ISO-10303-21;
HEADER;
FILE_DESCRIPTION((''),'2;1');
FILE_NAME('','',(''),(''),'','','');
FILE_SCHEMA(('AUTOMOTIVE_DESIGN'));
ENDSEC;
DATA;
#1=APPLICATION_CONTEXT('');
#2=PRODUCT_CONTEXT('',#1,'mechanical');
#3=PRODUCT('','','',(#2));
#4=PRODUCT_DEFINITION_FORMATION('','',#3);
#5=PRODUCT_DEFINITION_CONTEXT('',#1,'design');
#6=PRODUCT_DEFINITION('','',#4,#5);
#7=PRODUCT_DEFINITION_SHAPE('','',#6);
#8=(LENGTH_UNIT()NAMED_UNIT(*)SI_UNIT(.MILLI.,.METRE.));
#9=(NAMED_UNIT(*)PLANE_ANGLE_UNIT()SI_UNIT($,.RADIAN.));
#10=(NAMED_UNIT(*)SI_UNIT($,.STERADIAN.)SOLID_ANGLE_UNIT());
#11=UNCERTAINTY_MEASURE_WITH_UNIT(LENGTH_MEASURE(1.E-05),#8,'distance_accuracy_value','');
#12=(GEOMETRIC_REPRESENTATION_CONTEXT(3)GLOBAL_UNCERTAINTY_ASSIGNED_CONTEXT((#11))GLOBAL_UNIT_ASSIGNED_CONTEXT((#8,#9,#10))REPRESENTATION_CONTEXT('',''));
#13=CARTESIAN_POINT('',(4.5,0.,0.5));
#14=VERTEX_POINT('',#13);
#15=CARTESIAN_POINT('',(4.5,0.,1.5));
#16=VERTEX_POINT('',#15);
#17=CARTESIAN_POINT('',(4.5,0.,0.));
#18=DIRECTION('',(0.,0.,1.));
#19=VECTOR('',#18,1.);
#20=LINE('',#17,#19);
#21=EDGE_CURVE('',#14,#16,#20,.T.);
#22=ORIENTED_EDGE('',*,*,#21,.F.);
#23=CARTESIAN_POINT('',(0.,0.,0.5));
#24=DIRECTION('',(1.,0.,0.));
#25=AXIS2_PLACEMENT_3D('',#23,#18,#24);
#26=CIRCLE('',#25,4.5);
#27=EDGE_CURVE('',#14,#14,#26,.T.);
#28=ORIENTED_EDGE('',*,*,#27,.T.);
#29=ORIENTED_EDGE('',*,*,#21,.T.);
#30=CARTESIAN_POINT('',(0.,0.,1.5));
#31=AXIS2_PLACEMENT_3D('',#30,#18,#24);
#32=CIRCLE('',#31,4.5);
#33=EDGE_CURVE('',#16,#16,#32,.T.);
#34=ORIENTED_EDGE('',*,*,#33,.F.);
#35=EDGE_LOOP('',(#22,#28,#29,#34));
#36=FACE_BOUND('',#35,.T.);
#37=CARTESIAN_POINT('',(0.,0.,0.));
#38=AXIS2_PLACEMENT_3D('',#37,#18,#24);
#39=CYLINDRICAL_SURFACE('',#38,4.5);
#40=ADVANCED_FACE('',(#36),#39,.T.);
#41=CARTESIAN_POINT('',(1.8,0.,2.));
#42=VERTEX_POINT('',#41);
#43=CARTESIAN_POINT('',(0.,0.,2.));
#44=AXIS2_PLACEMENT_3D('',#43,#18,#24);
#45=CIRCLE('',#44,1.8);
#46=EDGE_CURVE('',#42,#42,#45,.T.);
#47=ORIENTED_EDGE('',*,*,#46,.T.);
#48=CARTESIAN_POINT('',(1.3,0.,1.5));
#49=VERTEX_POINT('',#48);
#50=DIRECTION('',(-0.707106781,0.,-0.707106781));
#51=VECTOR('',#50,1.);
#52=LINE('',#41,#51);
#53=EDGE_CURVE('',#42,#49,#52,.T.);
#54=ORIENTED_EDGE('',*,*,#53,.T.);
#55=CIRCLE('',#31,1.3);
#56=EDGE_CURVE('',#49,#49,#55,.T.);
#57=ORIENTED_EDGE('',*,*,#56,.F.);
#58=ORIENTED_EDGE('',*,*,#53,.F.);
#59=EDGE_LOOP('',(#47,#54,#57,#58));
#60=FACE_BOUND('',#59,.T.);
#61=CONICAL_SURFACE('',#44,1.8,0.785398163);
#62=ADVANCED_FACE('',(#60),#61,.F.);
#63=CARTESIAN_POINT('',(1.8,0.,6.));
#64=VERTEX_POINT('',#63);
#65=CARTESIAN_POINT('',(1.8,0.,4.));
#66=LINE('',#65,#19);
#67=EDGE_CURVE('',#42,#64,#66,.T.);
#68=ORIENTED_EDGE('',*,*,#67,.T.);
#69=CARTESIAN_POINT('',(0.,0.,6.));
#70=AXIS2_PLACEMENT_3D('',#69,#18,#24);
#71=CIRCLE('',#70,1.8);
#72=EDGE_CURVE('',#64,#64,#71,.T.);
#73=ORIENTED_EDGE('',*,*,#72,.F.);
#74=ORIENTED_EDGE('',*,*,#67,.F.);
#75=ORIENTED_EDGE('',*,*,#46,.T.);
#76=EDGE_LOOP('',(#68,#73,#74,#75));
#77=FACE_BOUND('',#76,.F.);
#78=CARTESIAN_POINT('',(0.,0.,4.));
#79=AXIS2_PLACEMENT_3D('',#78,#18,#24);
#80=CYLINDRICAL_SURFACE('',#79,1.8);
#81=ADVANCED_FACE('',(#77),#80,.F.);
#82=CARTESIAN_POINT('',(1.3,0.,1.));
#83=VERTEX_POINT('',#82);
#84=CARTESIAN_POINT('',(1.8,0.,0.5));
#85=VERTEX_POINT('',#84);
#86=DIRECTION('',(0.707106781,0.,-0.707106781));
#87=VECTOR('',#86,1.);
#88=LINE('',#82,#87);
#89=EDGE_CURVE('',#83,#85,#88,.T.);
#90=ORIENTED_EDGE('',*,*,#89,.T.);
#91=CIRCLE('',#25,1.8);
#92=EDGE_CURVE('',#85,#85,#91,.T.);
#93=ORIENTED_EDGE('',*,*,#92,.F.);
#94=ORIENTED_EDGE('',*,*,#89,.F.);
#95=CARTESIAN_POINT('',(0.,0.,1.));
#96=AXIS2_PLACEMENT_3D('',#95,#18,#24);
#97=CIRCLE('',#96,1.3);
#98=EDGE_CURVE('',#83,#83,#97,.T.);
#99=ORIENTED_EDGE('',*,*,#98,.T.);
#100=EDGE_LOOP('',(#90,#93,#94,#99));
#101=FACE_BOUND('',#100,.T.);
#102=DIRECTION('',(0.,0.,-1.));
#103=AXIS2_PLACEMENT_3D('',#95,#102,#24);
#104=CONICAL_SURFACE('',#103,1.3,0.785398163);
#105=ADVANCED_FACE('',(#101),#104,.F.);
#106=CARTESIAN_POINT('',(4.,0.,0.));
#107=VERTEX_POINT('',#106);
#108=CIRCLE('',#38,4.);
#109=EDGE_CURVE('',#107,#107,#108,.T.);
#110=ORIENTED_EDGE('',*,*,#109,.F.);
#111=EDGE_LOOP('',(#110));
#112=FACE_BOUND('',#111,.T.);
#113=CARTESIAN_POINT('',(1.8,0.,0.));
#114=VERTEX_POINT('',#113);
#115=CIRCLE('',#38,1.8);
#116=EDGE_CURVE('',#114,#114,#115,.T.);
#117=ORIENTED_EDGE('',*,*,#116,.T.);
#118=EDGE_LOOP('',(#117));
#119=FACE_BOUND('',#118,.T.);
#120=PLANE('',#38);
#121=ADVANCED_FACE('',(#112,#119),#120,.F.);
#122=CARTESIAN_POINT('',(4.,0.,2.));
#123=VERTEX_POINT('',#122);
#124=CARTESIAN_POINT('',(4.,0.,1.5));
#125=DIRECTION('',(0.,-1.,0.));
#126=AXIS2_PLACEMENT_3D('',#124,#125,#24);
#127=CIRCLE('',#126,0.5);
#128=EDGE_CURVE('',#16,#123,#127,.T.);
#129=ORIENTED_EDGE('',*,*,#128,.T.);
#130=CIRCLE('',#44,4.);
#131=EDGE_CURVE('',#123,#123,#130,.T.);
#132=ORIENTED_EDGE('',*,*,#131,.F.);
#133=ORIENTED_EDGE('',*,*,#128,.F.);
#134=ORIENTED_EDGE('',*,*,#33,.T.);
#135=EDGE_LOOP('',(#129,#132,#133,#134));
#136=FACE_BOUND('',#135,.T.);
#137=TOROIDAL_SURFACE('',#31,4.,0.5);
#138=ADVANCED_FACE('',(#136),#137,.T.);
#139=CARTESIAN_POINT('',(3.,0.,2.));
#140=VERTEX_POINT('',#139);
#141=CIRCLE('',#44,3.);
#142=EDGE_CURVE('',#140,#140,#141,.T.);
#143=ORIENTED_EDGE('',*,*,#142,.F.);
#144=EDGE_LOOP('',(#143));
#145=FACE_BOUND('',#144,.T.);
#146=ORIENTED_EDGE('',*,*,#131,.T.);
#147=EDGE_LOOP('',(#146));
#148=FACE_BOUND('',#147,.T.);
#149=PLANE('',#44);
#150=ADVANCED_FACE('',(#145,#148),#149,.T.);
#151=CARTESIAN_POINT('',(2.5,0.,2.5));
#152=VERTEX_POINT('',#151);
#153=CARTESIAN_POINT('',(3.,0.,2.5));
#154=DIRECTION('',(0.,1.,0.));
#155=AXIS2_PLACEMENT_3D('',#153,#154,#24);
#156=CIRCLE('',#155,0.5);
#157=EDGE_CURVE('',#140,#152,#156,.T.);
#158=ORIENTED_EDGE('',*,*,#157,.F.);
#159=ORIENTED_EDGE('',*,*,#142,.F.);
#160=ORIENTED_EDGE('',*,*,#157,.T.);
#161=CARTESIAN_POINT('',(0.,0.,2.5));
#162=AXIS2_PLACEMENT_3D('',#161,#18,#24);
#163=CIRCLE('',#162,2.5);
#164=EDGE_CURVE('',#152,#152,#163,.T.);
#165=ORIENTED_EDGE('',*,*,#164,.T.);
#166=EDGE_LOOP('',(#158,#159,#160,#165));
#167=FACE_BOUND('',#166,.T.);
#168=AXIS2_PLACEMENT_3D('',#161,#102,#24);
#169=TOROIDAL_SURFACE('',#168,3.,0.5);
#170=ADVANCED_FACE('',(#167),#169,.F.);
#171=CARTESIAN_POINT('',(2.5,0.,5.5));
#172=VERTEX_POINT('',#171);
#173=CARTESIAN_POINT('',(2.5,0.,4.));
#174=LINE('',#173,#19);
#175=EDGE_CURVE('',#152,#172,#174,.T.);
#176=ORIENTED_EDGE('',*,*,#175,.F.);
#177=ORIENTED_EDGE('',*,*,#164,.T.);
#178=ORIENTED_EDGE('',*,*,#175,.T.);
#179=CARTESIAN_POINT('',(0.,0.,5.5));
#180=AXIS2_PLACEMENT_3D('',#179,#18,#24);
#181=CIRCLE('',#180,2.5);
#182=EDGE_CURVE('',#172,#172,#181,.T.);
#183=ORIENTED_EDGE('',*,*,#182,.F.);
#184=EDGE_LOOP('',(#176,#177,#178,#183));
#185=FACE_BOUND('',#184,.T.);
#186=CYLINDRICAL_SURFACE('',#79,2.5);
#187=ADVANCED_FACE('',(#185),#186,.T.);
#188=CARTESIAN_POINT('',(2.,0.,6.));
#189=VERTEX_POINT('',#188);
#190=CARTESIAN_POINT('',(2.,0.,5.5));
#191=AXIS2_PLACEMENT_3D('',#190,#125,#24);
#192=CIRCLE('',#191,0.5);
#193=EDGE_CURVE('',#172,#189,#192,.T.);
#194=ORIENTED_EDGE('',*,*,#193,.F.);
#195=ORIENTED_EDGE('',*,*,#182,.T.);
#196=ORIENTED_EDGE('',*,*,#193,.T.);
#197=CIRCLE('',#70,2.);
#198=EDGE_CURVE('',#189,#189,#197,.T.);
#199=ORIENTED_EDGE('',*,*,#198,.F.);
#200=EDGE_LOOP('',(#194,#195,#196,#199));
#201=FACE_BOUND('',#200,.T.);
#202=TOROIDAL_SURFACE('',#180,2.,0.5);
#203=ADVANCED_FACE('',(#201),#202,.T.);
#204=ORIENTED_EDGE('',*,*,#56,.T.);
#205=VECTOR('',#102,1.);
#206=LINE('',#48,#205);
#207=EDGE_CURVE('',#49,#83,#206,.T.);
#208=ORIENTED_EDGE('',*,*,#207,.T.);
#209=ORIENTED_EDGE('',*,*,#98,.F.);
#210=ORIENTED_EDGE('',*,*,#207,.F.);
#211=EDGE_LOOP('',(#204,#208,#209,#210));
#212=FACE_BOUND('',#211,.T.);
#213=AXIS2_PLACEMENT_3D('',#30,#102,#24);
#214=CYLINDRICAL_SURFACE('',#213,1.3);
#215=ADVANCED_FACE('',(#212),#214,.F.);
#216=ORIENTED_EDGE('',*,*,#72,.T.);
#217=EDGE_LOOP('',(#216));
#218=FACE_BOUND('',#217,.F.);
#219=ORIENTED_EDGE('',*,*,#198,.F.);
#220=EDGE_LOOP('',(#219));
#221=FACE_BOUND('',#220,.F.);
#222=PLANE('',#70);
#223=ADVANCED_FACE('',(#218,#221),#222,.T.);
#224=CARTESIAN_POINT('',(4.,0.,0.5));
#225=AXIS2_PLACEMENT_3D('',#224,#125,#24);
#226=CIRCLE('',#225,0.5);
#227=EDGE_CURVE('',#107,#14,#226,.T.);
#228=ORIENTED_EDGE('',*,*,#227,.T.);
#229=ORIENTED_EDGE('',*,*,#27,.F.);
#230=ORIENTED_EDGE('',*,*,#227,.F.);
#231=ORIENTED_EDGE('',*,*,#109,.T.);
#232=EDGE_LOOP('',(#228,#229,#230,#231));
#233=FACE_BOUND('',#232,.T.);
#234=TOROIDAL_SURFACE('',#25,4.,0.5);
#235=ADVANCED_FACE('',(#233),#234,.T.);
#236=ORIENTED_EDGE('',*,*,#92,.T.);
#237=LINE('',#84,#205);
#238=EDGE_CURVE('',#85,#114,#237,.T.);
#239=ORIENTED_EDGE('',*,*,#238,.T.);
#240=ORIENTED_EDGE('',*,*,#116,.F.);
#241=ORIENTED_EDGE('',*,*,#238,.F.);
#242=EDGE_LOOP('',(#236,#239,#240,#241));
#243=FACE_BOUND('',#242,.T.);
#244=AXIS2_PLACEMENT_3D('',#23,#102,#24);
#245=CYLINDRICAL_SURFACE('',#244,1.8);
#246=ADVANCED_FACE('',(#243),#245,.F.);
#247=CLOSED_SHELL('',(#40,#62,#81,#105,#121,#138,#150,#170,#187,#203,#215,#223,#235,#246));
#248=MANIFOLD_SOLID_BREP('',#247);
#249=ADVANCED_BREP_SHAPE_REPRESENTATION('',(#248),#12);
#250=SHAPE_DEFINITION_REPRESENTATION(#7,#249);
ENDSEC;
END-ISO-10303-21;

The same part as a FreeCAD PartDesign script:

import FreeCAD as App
import Part
import Sketcher
from FreeCAD import Vector
Q = App.Units.Quantity


def edges_at(feature, points):
    """Names of the edges that pass closest to the given points."""
    edges = feature.Shape.Edges
    near = lambda p: min(range(len(edges)), key=lambda i: edges[i].distToShape(Part.Vertex(*p))[0])
    return sorted({f"Edge{near(p) + 1}" for p in points})


def add_polygon(sketch, points):
    """Adds a closed chain of lines whose ends are joined by coincident constraints."""
    first, n = sketch.GeometryCount, len(points)
    for a, b in zip(points, points[1:] + points[:1]):
        sketch.addGeometry(Part.LineSegment(App.Vector(*a, 0), App.Vector(*b, 0)), False)
    for i in range(n):
        sketch.addConstraint(Sketcher.Constraint("Coincident", first + i, 2, first + (i + 1) % n, 1))

doc = App.newDocument("Part")
body = doc.addObject("PartDesign::Body", "Body")

# Sketch on XZ plane
sketch1 = body.newObject("Sketcher::SketchObject", "Sketch")
sketch1.AttachmentSupport = (doc.getObject("XZ_Plane"), [""])
sketch1.MapMode = "FlatFace"
add_polygon(sketch1, [(1.8, 0.5), (1.8, 0), (4.5, 0), (4.5, 2), (2.5, 2), (2.5, 6), (1.8, 6), (1.8, 2), (1.3, 1.5), (1.3, 1)])  # lines 0-9
sketch1.addConstraint([
    Sketcher.Constraint("Vertical", 0),
    Sketcher.Constraint("Horizontal", 1),
    Sketcher.Constraint("Vertical", 2),
    Sketcher.Constraint("Horizontal", 3),
    Sketcher.Constraint("Vertical", 4),
    Sketcher.Constraint("Horizontal", 5),
    Sketcher.Constraint("Vertical", 6),
    Sketcher.Constraint("Vertical", 8),
    Sketcher.Constraint("PointOnObject", 0, 2, -1),
    Sketcher.Constraint("Perpendicular", 7, 9),
    Sketcher.Constraint("Horizontal", 3, 2, 6, 2),
    Sketcher.Constraint("Vertical", 0, 2, 5, 2),
    Sketcher.Constraint("Equal", 3, 2),
    Sketcher.Constraint("Equal", 0, 8),
    Sketcher.Constraint("Equal", 7, 9),
    Sketcher.Constraint("DistanceX", 3, 2, 3, 1, Q("2 mm")),
    Sketcher.Constraint("DistanceY", 4, 1, 4, 2, Q("4 mm")),
    Sketcher.Constraint("DistanceX", 1, 1, 1, 2, Q("2.7 mm")),
    Sketcher.Constraint("DistanceY", 0, 2, 0, 1, Q("0.5 mm")),
    Sketcher.Constraint("DistanceX", -1, 1, 0, 2, Q("1.8 mm")),
])
revolution = body.newObject("PartDesign::Revolution", "Revolution")
revolution.Profile = sketch1
revolution.ReferenceAxis = (sketch1, ["V_Axis"])
revolution.Angle = 360
doc.recompute()

fillet = body.newObject("PartDesign::Fillet", "Fillet")
fillet.Base = (revolution, edges_at(revolution, [
    (-2.5, 0, 6),
    (-4.5, 0, 2),
    (-2.5, 0, 2),
    (-4.5, 0, 0),
]))
fillet.Radius = 0.5

doc.recompute()
